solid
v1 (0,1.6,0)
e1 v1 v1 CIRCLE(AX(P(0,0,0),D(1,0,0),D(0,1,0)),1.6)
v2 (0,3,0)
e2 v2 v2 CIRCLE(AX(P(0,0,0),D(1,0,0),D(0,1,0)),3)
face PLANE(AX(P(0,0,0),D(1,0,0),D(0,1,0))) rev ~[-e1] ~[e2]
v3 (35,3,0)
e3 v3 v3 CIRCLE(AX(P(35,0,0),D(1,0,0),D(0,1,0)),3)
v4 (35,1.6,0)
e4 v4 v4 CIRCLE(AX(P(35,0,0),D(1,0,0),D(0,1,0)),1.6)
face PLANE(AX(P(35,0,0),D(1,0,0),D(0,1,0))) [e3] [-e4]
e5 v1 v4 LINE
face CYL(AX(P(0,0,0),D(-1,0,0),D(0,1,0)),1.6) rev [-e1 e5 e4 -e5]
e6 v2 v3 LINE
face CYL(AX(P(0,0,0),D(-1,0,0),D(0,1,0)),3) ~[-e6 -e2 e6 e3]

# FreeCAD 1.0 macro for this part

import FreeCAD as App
import Part
import Sketcher

V = App.Vector
Q = App.Units.Quantity

doc = App.newDocument("Part")
body = doc.addObject("PartDesign::Body", "Body")

sketch1 = body.newObject("Sketcher::SketchObject", "Sketch")
sketch1.AttachmentSupport = (doc.getObject("YZ_Plane"), [""])
sketch1.MapMode = "FlatFace"
sketch1.addGeometry(Part.Circle(V(0, 0, 0), V(0, 0, 1), 3), False)
sketch1.addGeometry(Part.Circle(V(0, 0, 0), V(0, 0, 1), 1.6), False)
sketch1.addConstraint(Sketcher.Constraint("Coincident", 0, 3, -1, 1))
sketch1.addConstraint(Sketcher.Constraint("Coincident", 1, 3, -1, 1))
sketch1.addConstraint(Sketcher.Constraint("Diameter", 0, Q("6 mm")))
sketch1.addConstraint(Sketcher.Constraint("Diameter", 1, Q("3.2 mm")))
pad1 = body.newObject("PartDesign::Pad", "Pad")
pad1.Profile = sketch1
pad1.Length = 35

doc.recompute()
